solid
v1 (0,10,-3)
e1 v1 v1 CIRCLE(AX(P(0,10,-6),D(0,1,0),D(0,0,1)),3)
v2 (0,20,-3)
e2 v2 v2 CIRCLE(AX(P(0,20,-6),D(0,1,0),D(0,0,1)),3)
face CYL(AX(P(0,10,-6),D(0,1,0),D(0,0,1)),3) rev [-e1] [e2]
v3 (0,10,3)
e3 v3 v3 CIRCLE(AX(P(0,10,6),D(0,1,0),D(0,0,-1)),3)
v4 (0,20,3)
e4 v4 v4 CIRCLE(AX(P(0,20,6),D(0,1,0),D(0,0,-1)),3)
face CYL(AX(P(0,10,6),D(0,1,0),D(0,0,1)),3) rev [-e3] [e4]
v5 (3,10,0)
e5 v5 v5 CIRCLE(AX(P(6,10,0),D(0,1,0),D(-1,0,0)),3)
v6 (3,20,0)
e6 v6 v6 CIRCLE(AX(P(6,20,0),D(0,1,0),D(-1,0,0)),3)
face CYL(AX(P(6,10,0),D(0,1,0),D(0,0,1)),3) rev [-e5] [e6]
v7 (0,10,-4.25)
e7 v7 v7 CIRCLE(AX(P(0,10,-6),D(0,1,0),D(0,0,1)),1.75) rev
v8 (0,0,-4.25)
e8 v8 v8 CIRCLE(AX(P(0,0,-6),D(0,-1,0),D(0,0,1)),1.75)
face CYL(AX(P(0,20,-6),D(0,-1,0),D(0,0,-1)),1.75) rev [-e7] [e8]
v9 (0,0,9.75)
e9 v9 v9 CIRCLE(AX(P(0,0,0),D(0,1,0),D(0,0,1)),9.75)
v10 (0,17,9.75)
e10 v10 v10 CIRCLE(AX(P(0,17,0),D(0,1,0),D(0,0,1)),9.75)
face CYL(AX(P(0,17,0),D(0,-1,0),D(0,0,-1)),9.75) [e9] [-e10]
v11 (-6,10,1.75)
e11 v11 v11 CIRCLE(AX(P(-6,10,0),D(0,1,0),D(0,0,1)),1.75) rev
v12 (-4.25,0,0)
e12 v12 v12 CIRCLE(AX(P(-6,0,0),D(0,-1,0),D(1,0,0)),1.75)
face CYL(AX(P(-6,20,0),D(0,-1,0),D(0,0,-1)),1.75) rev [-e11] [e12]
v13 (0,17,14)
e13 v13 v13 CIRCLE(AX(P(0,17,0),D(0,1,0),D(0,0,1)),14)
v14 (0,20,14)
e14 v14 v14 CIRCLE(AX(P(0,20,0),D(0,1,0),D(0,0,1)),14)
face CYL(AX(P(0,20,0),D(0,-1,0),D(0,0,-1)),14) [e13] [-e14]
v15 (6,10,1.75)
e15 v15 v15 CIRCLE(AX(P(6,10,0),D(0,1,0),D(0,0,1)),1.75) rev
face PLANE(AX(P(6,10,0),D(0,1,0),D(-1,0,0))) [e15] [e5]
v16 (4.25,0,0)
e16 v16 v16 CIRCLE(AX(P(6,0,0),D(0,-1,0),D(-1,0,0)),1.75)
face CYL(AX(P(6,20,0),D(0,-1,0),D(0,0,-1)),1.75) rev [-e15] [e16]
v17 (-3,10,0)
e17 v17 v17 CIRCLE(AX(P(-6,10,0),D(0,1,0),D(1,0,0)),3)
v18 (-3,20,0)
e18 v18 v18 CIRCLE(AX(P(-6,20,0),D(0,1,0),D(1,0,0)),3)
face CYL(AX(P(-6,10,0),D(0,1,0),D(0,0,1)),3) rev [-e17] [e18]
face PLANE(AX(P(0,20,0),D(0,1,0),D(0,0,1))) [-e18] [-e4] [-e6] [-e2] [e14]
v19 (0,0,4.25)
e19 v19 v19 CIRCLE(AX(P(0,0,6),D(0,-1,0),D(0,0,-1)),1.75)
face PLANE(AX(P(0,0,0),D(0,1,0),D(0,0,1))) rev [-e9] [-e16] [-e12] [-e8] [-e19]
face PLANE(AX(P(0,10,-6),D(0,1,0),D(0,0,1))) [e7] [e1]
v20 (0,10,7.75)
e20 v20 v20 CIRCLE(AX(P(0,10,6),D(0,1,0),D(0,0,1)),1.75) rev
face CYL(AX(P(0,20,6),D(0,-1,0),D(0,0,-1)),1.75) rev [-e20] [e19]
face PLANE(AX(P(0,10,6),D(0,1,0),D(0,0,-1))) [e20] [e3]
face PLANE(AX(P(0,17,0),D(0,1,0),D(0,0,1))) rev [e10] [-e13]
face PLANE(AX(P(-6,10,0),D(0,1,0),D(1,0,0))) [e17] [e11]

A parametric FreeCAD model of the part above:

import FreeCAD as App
import Part
import Sketcher
from FreeCAD import Vector

doc = App.newDocument("Part")
body = doc.addObject("PartDesign::Body", "Body")

sketch1 = body.newObject("Sketcher::SketchObject", "Sketch")
sketch1.AttachmentSupport = (doc.getObject("XZ_Plane"), [""])
sketch1.MapMode = "FlatFace"
sketch1.addGeometry(Part.Circle(Vector(0, 0, 0), Vector(0, 0, 1), 10), False)
sketch1.addConstraint(Sketcher.Constraint("Coincident", 0, 3, -1, 1))
sketch1.addConstraint(Sketcher.Constraint("Diameter", 0, 19.5))
pad1 = body.newObject("PartDesign::Pad", "Pad")
pad1.Profile = sketch1
pad1.Length = 17
pad1.Reversed = True

sketch2 = body.newObject("Sketcher::SketchObject", "Sketch001")
sketch2.AttachmentSupport = (doc.getObject("XZ_Plane"), [""])
sketch2.MapMode = "FlatFace"
sketch2.AttachmentOffset = App.Placement(Vector(0, 0, -17), App.Rotation())
sketch2.addGeometry(Part.Circle(Vector(0, 0, 0), Vector(0, 0, 1), 14), False)
sketch2.addConstraint(Sketcher.Constraint("Coincident", 0, 3, -1, 1))
sketch2.addConstraint(Sketcher.Constraint("Diameter", 0, 28.0))
pad2 = body.newObject("PartDesign::Pad", "Pad001")
pad2.Profile = sketch2
pad2.Length = 3
pad2.Reversed = True

sketch3 = body.newObject("Sketcher::SketchObject", "Sketch002")
sketch3.AttachmentSupport = (doc.getObject("XZ_Plane"), [""])
sketch3.MapMode = "FlatFace"
sketch3.addGeometry(Part.Circle(Vector(0, 6, 0), Vector(0, 0, 1), 1.8), False)
sketch3.addConstraint(Sketcher.Constraint("PointOnObject", 0, 3, -2))
sketch3.addConstraint(Sketcher.Constraint("Diameter", 0, 3.5))
sketch3.addConstraint(Sketcher.Constraint("DistanceY", -1, 1, 0, 3, 6.0))
pocket1 = body.newObject("PartDesign::Pocket", "Pocket")
pocket1.Profile = sketch3
pocket1.Type = "ThroughAll"
doc.recompute()

polarpattern = body.newObject("PartDesign::PolarPattern", "PolarPattern")
polarpattern.Originals = [pocket1]
polarpattern.Axis = (doc.getObject("Y_Axis"), [""])
polarpattern.Angle = 360
polarpattern.Occurrences = 4
body.Tip = polarpattern

sketch4 = body.newObject("Sketcher::SketchObject", "Sketch003")
sketch4.AttachmentSupport = (doc.getObject("XZ_Plane"), [""])
sketch4.MapMode = "FlatFace"
sketch4.AttachmentOffset = App.Placement(Vector(0, 0, -20), App.Rotation())
sketch4.addGeometry(Part.Circle(Vector(0, -6, 0), Vector(0, 0, 1), 3), False)
sketch4.addConstraint(Sketcher.Constraint("PointOnObject", 0, 3, -2))
sketch4.addConstraint(Sketcher.Constraint("Diameter", 0, 6.0))
sketch4.addConstraint(Sketcher.Constraint("DistanceY", 0, 3, -1, 1, 6.0))
pocket2 = body.newObject("PartDesign::Pocket", "Pocket001")
pocket2.Profile = sketch4
pocket2.Length = 10
pocket2.Reversed = True
doc.recompute()

polarpattern2 = body.newObject("PartDesign::PolarPattern", "PolarPattern001")
polarpattern2.Originals = [pocket2]
polarpattern2.Axis = (doc.getObject("Y_Axis"), [""])
polarpattern2.Angle = 360
polarpattern2.Occurrences = 4
body.Tip = polarpattern2

doc.recompute()
